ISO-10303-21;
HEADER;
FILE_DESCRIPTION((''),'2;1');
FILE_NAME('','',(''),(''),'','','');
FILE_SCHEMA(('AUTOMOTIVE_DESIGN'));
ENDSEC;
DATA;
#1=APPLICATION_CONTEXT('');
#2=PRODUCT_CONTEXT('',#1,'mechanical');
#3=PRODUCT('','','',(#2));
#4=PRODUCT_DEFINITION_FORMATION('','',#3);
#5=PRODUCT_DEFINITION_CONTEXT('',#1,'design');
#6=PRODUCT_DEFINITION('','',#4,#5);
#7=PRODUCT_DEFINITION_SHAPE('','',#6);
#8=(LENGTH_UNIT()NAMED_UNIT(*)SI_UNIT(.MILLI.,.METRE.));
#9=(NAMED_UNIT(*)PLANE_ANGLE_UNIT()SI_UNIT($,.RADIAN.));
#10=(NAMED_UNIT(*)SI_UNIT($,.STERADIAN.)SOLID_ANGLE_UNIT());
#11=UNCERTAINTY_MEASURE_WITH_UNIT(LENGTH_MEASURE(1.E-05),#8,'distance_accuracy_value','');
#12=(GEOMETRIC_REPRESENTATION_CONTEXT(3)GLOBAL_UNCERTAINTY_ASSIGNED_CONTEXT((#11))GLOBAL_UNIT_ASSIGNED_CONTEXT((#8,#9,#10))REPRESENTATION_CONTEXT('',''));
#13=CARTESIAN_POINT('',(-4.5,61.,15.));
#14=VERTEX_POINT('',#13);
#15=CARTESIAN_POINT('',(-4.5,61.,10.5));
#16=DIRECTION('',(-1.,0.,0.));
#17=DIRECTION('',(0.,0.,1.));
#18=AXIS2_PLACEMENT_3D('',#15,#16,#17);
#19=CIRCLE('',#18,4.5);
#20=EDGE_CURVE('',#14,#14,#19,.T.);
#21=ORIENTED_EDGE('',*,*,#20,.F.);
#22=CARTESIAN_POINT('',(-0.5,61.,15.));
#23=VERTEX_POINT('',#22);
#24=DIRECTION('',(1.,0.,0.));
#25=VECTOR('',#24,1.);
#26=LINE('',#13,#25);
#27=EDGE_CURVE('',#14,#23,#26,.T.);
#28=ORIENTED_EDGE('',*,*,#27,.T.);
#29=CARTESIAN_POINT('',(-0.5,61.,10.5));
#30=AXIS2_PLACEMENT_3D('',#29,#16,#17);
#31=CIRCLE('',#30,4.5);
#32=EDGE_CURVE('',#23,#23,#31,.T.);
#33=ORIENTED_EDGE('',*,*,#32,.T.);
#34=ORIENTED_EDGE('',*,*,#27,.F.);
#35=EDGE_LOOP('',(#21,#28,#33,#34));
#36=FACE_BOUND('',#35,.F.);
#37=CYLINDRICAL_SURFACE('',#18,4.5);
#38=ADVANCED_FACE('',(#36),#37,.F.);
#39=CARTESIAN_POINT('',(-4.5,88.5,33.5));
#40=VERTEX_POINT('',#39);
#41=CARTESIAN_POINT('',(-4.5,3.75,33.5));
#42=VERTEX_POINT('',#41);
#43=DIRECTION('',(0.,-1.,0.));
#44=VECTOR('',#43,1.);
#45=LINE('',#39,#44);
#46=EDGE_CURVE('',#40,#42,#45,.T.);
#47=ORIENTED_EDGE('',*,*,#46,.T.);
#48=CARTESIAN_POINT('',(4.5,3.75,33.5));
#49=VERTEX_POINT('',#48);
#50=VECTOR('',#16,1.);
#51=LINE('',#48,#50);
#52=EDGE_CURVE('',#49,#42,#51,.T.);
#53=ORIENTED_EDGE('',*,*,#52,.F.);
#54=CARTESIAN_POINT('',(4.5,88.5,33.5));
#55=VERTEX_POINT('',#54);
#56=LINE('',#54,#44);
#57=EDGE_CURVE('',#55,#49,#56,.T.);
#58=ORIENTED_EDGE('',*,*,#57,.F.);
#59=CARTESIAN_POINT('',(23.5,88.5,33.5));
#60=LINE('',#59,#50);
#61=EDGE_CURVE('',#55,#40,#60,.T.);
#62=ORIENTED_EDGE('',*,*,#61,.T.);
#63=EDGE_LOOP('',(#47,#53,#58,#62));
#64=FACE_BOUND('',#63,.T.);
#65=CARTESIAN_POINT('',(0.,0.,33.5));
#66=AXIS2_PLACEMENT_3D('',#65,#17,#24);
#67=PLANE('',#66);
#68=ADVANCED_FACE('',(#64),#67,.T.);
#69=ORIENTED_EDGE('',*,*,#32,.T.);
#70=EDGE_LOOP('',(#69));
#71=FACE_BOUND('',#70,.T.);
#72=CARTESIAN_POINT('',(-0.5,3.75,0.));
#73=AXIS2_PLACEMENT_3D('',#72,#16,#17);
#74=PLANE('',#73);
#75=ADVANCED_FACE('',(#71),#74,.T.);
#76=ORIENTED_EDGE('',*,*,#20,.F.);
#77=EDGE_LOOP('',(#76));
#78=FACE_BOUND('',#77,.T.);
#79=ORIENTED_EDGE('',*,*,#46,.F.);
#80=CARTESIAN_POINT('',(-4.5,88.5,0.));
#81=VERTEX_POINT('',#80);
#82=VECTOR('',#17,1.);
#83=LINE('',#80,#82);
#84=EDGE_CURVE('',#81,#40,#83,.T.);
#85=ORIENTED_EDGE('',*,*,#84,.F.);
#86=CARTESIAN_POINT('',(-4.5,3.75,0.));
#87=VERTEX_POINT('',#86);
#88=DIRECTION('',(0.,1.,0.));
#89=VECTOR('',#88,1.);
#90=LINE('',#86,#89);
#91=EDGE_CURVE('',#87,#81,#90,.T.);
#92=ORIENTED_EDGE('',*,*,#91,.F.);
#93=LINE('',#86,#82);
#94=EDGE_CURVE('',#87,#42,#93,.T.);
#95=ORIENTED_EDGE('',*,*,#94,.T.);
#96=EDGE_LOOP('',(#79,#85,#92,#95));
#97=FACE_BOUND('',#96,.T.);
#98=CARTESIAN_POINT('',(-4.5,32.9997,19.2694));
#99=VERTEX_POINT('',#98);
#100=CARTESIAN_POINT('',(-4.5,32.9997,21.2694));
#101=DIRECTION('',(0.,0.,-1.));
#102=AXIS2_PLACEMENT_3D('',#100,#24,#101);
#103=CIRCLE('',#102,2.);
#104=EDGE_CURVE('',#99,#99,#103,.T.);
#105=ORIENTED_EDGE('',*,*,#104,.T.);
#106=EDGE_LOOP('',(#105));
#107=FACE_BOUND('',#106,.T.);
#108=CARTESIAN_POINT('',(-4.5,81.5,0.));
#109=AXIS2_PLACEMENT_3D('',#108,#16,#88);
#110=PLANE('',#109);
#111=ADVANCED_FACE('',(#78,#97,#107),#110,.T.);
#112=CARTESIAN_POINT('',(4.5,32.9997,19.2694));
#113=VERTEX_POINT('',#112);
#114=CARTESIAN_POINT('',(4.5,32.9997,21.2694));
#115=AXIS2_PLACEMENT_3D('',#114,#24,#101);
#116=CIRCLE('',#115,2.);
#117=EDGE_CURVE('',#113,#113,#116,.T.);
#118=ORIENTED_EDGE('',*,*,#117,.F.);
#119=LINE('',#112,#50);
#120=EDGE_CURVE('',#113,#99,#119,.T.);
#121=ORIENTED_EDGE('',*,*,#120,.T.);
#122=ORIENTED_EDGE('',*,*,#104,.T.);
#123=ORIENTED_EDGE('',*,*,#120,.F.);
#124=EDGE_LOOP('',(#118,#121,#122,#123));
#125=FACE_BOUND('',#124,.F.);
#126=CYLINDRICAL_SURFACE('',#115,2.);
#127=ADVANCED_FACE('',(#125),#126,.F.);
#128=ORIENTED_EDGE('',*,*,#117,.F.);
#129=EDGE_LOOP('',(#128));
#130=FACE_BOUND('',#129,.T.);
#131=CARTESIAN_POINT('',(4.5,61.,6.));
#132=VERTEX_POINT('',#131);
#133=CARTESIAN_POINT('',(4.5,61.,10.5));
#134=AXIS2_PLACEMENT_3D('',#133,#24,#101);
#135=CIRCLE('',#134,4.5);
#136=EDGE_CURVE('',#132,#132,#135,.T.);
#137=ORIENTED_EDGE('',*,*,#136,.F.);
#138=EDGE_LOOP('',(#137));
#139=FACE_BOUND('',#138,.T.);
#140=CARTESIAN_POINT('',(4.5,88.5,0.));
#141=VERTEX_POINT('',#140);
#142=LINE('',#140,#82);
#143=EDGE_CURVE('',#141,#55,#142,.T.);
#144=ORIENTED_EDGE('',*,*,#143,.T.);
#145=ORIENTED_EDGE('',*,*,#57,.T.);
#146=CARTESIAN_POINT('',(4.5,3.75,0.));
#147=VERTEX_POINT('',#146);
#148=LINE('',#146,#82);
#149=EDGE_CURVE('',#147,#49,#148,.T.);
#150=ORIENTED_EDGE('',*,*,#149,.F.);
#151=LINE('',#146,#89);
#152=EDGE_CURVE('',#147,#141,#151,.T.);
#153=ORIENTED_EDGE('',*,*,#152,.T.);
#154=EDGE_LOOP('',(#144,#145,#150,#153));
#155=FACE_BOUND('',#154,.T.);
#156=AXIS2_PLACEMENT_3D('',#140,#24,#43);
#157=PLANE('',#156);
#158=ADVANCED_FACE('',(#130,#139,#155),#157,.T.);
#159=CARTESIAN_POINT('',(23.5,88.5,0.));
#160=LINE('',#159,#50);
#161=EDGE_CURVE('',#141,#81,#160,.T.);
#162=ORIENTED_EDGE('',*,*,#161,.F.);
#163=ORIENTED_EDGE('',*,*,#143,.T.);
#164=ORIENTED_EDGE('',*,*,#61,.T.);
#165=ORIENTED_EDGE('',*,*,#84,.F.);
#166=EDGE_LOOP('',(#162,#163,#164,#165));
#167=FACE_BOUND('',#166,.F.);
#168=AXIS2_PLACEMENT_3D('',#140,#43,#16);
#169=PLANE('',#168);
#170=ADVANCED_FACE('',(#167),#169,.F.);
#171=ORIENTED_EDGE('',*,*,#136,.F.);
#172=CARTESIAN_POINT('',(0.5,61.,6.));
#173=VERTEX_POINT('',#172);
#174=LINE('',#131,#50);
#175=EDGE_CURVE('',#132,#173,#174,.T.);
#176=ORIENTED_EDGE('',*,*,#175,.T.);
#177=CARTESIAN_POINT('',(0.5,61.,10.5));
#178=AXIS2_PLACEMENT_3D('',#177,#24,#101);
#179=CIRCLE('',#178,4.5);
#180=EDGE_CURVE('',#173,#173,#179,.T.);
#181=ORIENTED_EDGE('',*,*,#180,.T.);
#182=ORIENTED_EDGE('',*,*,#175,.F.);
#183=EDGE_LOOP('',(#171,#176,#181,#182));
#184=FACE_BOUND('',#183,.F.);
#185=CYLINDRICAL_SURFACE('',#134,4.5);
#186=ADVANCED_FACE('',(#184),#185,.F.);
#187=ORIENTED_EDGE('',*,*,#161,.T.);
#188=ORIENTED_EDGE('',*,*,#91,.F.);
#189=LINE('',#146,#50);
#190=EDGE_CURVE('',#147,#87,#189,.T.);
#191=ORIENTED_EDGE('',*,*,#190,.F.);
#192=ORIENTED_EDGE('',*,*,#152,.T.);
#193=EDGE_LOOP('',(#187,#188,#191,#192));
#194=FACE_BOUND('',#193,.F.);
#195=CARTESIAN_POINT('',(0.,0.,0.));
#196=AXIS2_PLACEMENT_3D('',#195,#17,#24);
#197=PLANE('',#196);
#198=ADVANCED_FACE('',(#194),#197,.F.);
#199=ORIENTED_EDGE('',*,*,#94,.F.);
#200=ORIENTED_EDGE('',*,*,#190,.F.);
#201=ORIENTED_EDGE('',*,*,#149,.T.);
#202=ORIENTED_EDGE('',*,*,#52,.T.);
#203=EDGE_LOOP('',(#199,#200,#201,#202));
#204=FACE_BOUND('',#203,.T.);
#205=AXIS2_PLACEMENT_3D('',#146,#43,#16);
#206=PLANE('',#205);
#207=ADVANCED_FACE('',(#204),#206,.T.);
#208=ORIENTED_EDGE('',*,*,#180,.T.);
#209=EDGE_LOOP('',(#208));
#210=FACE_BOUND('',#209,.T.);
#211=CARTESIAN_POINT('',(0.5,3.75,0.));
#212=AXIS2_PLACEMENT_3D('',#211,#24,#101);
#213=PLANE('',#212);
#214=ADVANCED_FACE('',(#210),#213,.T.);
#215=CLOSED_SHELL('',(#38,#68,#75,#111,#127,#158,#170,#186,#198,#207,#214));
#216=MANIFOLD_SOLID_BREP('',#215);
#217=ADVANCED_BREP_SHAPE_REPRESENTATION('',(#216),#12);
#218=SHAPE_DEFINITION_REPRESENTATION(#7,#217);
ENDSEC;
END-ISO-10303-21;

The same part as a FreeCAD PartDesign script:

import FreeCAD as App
import Part
import Sketcher


def add_polygon(sketch, points):
    """Adds a closed chain of lines whose ends are joined by coincident constraints."""
    first, n = sketch.GeometryCount, len(points)
    for a, b in zip(points, points[1:] + points[:1]):
        sketch.addGeometry(Part.LineSegment(App.Vector(*a, 0), App.Vector(*b, 0)), False)
    for i in range(n):
        sketch.addConstraint(Sketcher.Constraint("Coincident", first + i, 2, first + (i + 1) % n, 1))

doc = App.newDocument("Part")
body = doc.addObject("PartDesign::Body", "Body")

# Sketch on XY plane
sketch1 = body.newObject("Sketcher::SketchObject", "Sketch")
sketch1.AttachmentSupport = (doc.getObject("XY_Plane"), [""])
sketch1.MapMode = "FlatFace"
add_polygon(sketch1, [(4.5, 3.75), (4.5, 88.5), (-4.5, 88.5), (-4.5, 3.75)])  # lines 0-3
sketch1.addConstraint([
    Sketcher.Constraint("Vertical", 0),
    Sketcher.Constraint("Horizontal", 1),
    Sketcher.Constraint("Vertical", 2),
    Sketcher.Constraint("Horizontal", 3),
    Sketcher.Constraint("DistanceX", 1, 2, 1, 1, 9.0),
    Sketcher.Constraint("DistanceY", 0, 1, 0, 2, 84.75),
    Sketcher.Constraint("DistanceX", -1, 1, 0, 2, 4.5),
    Sketcher.Constraint("DistanceY", -1, 1, 0, 2, 88.5),
])
pad1 = body.newObject("PartDesign::Pad", "Pad")
pad1.Profile = sketch1
pad1.Length = 33.5

# Sketch on YZ plane
sketch2 = body.newObject("Sketcher::SketchObject", "Sketch001")
sketch2.AttachmentSupport = (doc.getObject("YZ_Plane"), [""])
sketch2.MapMode = "FlatFace"
sketch2.AttachmentOffset = App.Placement(App.Vector(0, 0, 4.5), App.Rotation())
sketch2.addGeometry(Part.Circle(App.Vector(32.9997, 21.2694, 0), App.Vector(0, 0, 1), 2), False)
sketch2.addConstraint([
    Sketcher.Constraint("Diameter", 0, 4.0),
    Sketcher.Constraint("DistanceX", -1, 1, 0, 3, 32.9997),
    Sketcher.Constraint("DistanceY", -1, 1, 0, 3, 21.2694),
])
pocket1 = body.newObject("PartDesign::Pocket", "Pocket")
pocket1.Profile = sketch2
pocket1.Length = 10

# Sketch on YZ plane
sketch3 = body.newObject("Sketcher::SketchObject", "Sketch002")
sketch3.AttachmentSupport = (doc.getObject("YZ_Plane"), [""])
sketch3.MapMode = "FlatFace"
sketch3.AttachmentOffset = App.Placement(App.Vector(0, 0, 4.5), App.Rotation())
sketch3.addGeometry(Part.Circle(App.Vector(61, 10.5, 0), App.Vector(0, 0, 1), 4.5), False)
sketch3.addConstraint([
    Sketcher.Constraint("Diameter", 0, 9.0),
    Sketcher.Constraint("DistanceX", -1, 1, 0, 3, 61.0),
    Sketcher.Constraint("DistanceY", -1, 1, 0, 3, 10.5),
])
pocket2 = body.newObject("PartDesign::Pocket", "Pocket001")
pocket2.Profile = sketch3
pocket2.Length = 4

# Sketch on YZ plane
sketch4 = body.newObject("Sketcher::SketchObject", "Sketch003")
sketch4.AttachmentSupport = (doc.getObject("YZ_Plane"), [""])
sketch4.MapMode = "FlatFace"
sketch4.AttachmentOffset = App.Placement(App.Vector(0, 0, -4.5), App.Rotation())
sketch4.addGeometry(Part.Circle(App.Vector(61, 10.5, 0), App.Vector(0, 0, 1), 4.5), False)
sketch4.addConstraint([
    Sketcher.Constraint("Diameter", 0, 9.0),
    Sketcher.Constraint("DistanceX", -1, 1, 0, 3, 61.0),
    Sketcher.Constraint("DistanceY", -1, 1, 0, 3, 10.5),
])
pocket3 = body.newObject("PartDesign::Pocket", "Pocket002")
pocket3.Profile = sketch4
pocket3.Length = 4
pocket3.Reversed = True

doc.recompute()
